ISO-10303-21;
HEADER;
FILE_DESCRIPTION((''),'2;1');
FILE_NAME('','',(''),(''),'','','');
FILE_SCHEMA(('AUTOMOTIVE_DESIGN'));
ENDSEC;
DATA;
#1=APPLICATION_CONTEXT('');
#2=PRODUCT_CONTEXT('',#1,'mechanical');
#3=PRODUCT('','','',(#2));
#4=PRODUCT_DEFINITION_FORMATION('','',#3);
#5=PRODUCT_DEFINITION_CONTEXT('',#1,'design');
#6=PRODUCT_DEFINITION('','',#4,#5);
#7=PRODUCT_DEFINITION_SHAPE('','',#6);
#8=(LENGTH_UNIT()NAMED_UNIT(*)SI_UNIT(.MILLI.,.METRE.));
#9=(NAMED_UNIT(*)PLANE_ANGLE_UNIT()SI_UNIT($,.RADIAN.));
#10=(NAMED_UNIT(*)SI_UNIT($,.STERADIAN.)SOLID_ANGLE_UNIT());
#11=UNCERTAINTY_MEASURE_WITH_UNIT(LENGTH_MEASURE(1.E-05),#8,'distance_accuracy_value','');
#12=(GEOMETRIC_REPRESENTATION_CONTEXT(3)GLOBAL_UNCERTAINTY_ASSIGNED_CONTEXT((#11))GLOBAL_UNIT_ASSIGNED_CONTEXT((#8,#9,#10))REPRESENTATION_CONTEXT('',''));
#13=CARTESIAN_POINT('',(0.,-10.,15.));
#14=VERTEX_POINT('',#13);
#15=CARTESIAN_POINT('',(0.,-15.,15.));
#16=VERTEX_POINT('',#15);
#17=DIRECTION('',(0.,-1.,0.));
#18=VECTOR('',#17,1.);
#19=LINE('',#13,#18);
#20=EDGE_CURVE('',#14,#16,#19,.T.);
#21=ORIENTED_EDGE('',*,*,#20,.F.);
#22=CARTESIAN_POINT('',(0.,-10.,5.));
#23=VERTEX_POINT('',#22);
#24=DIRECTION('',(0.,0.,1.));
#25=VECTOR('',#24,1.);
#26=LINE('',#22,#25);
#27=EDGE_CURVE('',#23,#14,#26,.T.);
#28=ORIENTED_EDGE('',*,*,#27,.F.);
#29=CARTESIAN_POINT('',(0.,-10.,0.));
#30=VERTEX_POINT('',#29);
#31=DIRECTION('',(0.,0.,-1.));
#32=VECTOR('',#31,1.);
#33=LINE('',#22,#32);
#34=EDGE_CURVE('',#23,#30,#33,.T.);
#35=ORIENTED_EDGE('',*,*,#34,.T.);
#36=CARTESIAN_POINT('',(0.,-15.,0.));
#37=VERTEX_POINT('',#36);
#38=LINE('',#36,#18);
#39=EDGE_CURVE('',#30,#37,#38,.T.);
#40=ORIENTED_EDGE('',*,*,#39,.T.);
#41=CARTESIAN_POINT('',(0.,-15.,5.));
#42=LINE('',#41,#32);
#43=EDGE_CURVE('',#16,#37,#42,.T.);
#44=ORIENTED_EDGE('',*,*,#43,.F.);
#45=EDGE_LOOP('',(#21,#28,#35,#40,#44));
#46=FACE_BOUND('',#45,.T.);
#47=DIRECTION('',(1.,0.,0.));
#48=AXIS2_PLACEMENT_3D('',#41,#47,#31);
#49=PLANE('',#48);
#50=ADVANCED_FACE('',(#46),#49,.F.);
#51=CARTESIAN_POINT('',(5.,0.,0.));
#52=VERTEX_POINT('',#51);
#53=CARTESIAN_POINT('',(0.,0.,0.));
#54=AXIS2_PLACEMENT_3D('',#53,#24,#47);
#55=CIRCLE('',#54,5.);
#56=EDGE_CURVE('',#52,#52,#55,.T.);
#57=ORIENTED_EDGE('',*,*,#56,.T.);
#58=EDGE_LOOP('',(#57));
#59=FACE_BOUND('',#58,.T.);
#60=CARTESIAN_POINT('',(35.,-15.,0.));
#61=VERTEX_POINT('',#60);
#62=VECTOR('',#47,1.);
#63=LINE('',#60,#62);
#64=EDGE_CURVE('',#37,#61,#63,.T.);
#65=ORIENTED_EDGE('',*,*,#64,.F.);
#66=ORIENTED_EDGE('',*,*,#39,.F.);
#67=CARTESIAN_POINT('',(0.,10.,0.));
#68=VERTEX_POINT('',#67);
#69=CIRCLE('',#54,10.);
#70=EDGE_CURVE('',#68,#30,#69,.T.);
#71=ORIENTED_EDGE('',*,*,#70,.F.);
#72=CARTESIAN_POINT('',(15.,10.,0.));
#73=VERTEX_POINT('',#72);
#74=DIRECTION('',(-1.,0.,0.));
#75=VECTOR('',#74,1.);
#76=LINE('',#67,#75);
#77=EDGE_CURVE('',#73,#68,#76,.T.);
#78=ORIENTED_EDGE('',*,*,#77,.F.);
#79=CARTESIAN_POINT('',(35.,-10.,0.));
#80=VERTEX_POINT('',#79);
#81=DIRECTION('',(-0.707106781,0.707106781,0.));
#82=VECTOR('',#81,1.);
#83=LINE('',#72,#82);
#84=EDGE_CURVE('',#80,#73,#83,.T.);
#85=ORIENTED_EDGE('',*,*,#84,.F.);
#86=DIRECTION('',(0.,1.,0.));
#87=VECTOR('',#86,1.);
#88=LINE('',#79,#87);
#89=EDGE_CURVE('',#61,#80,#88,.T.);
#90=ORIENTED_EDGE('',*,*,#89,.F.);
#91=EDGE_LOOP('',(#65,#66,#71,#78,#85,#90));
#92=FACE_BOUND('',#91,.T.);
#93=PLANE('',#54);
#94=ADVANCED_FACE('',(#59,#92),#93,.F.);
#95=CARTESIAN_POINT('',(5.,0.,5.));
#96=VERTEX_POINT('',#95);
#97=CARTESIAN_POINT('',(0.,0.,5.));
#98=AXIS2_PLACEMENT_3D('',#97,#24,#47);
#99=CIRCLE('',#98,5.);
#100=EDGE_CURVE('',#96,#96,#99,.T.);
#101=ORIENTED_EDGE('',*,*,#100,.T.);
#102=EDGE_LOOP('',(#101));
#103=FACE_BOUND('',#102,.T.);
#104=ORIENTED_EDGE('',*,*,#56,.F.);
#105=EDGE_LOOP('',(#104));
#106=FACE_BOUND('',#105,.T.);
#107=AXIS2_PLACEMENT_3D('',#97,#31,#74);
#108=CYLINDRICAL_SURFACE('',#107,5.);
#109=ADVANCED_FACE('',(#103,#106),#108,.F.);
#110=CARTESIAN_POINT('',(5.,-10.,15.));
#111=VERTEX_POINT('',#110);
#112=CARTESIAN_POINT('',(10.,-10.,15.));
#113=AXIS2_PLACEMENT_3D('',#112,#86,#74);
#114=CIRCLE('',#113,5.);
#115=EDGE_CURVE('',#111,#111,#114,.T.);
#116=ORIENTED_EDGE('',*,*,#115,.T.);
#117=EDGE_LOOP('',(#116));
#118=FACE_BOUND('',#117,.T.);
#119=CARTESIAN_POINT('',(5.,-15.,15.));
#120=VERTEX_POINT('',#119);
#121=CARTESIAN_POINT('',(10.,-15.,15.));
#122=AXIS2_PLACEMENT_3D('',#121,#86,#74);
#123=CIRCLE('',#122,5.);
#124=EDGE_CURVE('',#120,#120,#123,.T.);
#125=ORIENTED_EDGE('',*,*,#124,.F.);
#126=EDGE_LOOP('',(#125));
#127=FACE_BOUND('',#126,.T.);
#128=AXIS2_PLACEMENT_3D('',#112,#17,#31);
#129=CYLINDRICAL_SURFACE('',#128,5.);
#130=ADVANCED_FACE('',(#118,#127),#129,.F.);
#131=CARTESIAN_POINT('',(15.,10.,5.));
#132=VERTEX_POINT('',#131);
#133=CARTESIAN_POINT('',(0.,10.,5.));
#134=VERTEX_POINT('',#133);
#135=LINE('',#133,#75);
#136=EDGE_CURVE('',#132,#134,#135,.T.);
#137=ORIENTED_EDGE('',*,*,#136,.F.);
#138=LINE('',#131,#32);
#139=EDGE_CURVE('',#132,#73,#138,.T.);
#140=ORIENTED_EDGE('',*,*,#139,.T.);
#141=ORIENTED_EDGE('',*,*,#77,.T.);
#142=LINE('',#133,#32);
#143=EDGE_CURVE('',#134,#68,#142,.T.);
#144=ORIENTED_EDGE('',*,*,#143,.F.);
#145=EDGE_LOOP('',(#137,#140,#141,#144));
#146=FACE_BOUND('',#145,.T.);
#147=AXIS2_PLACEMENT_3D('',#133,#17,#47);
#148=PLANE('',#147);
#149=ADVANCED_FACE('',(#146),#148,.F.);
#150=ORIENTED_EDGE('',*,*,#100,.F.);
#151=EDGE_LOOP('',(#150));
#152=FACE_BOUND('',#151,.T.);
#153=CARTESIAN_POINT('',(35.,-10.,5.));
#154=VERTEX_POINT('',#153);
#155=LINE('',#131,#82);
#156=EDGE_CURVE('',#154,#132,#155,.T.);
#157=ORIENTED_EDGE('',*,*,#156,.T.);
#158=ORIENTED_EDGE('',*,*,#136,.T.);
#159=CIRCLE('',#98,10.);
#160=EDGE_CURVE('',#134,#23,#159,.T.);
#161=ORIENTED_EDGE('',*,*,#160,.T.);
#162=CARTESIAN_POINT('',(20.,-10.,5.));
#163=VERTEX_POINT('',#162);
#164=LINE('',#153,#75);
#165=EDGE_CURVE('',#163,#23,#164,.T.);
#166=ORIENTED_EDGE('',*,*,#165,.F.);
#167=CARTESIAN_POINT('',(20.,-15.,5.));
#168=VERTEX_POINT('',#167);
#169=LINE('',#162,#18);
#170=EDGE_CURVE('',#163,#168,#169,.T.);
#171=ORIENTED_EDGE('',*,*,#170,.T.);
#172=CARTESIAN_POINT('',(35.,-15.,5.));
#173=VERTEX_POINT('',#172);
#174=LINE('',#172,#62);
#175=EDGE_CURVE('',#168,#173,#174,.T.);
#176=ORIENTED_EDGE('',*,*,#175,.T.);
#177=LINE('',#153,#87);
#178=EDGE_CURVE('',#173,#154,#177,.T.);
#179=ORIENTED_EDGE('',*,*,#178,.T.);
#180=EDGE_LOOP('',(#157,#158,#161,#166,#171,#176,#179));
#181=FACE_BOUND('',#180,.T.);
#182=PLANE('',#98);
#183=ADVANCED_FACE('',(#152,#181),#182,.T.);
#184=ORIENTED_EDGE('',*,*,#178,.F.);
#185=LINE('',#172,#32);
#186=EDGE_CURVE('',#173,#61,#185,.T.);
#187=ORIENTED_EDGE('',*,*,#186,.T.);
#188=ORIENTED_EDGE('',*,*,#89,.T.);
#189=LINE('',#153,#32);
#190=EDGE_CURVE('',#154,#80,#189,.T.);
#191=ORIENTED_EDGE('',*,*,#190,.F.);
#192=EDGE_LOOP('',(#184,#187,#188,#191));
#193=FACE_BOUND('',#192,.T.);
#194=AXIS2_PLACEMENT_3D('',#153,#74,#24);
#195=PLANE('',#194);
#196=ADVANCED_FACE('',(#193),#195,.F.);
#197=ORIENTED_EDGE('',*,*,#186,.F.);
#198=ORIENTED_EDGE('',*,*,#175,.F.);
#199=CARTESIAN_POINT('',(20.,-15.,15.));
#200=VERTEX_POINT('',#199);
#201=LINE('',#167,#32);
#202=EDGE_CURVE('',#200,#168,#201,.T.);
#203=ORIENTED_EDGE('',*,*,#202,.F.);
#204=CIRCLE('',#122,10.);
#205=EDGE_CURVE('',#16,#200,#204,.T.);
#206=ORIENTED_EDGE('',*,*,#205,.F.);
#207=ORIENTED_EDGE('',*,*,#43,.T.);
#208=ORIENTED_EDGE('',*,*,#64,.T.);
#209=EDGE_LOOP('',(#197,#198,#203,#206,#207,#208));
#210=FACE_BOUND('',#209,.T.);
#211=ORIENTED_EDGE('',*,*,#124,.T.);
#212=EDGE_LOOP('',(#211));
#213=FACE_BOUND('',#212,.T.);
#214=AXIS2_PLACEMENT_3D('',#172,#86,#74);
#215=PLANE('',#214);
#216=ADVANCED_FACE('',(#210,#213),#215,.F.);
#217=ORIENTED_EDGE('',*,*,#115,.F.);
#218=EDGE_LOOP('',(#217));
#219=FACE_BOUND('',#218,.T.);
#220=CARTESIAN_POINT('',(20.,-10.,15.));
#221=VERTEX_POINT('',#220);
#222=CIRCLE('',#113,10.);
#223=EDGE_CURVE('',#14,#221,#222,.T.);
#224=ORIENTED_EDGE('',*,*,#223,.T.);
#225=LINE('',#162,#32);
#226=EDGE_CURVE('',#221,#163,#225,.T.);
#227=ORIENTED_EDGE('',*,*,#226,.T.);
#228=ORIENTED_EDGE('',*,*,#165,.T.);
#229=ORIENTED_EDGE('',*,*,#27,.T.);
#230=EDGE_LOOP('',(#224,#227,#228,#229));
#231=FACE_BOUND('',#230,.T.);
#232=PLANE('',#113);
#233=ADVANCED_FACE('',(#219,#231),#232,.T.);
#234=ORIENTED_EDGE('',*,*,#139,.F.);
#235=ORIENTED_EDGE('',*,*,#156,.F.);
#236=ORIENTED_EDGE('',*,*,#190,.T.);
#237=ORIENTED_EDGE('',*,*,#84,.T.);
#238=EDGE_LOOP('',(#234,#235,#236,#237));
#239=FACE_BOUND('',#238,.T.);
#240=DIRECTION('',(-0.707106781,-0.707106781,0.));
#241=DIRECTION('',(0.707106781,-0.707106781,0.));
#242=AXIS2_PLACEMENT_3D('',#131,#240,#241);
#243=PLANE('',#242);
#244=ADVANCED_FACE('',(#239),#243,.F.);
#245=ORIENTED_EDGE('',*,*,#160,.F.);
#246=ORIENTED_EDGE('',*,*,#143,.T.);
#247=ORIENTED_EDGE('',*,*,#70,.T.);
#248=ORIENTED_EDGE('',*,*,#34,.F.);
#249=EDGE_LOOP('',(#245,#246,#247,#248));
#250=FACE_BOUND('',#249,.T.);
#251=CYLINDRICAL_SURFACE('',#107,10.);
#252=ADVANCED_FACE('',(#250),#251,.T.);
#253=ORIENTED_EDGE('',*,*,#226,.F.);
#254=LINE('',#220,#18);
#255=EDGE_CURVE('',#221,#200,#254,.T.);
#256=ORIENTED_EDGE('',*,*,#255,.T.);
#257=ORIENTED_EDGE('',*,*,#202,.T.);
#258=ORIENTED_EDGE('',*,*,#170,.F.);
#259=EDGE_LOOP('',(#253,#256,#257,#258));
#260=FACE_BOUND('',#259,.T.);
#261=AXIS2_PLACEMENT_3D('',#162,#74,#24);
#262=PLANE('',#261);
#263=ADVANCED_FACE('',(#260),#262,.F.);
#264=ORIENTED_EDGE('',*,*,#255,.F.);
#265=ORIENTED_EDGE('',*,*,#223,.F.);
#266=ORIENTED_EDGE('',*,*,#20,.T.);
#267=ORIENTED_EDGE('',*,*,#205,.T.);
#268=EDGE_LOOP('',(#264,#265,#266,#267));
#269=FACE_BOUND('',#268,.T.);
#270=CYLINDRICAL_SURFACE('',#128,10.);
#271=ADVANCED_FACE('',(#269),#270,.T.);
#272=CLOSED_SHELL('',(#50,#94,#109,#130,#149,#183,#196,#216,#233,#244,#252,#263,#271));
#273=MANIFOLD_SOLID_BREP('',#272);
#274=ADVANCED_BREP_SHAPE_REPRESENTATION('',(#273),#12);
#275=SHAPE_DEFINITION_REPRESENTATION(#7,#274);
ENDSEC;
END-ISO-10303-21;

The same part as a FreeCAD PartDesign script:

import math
import FreeCAD as App
import Part
import Sketcher
Q = App.Units.Quantity

doc = App.newDocument("Part")
params = doc.addObject("Spreadsheet::Sheet", "Params")
for row, (alias, value) in enumerate([
    ("sketch1_diameter", "10 mm"),
    ("sketch1_radius", "10 mm"),
    ("sketch1_width", "15 mm"),
    ("sketch1_width2", "35 mm"),
    ("sketch1_height", "5 mm"),
    ("pad1_length", "5 mm"),
    ("sketch2_diameter", "10 mm"),
    ("sketch2_radius", "10 mm"),
    ("sketch2_height", "10 mm"),
    ("pad2_length", "5 mm"),
], start=1):
    params.set(f"A{row}", alias)
    params.set(f"B{row}", "=" + value)
    params.setAlias(f"B{row}", alias)

body = doc.addObject("PartDesign::Body", "Body")

# Sketch on XY plane
sketch1 = body.newObject("Sketcher::SketchObject", "Sketch")
sketch1.AttachmentSupport = (doc.getObject("XY_Plane"), [""])
sketch1.MapMode = "FlatFace"
sketch1.addGeometry([
    Part.LineSegment(App.Vector(15, 10, 0), App.Vector(0, 10, 0)),  # 0
    Part.ArcOfCircle(Part.Circle(App.Vector(0, 0, 0), App.Vector(0, 0, 1), 10), math.radians(90), math.radians(270)),  # 1
    Part.LineSegment(App.Vector(0, -10, 0), App.Vector(0, -15, 0)),  # 2
    Part.LineSegment(App.Vector(0, -15, 0), App.Vector(35, -15, 0)),  # 3
    Part.LineSegment(App.Vector(35, -15, 0), App.Vector(35, -10, 0)),  # 4
    Part.LineSegment(App.Vector(35, -10, 0), App.Vector(15, 10, 0)),  # 5
    Part.Circle(App.Vector(0, 0, 0), App.Vector(0, 0, 1), 5),  # 6
], False)
sketch1.addConstraint([
    Sketcher.Constraint("Tangent", 0, 2, 1, 1),
    Sketcher.Constraint("Coincident", 1, 2, 2, 1),
    Sketcher.Constraint("Coincident", 2, 2, 3, 1),
    Sketcher.Constraint("Coincident", 3, 2, 4, 1),
    Sketcher.Constraint("Coincident", 4, 2, 5, 1),
    Sketcher.Constraint("Coincident", 5, 2, 0, 1),
    Sketcher.Constraint("Horizontal", 0),
    Sketcher.Constraint("Vertical", 2),
    Sketcher.Constraint("Horizontal", 3),
    Sketcher.Constraint("Vertical", 4),
    Sketcher.Constraint("Coincident", 1, 3, -1, 1),
    Sketcher.Constraint("Coincident", 6, 3, -1, 1),
    Sketcher.Constraint("PointOnObject", 1, 2, -2),
    Sketcher.Constraint("Horizontal", 1, 2, 4, 2),
    Sketcher.Constraint("Diameter", 6, Q("10 mm")),
    Sketcher.Constraint("Radius", 1, Q("10 mm")),
    Sketcher.Constraint("DistanceX", 0, 2, 0, 1, Q("15 mm")),
    Sketcher.Constraint("DistanceX", 3, 1, 3, 2, Q("35 mm")),
    Sketcher.Constraint("DistanceY", 2, 2, 2, 1, Q("5 mm")),
])
sketch1.setExpression("Constraints[14]", "Params.sketch1_diameter")
sketch1.setExpression("Constraints[15]", "Params.sketch1_radius")
sketch1.setExpression("Constraints[16]", "Params.sketch1_width")
sketch1.setExpression("Constraints[17]", "Params.sketch1_width2")
sketch1.setExpression("Constraints[18]", "Params.sketch1_height")
pad1 = body.newObject("PartDesign::Pad", "Pad")
pad1.Profile = sketch1
pad1.setExpression("Length", "Params.pad1_length")

# Sketch on XZ plane
sketch2 = body.newObject("Sketcher::SketchObject", "Sketch001")
sketch2.AttachmentSupport = (doc.getObject("XZ_Plane"), [""])
sketch2.MapMode = "FlatFace"
sketch2.AttachmentOffset = App.Placement(App.Vector(0, 0, 15), App.Rotation())
sketch2.addGeometry([
    Part.LineSegment(App.Vector(0, 5, 0), App.Vector(0, 15, 0)),  # 0
    Part.ArcOfCircle(Part.Circle(App.Vector(10, 15, 0), App.Vector(0, 0, 1), 10), math.radians(0), math.radians(180)),  # 1
    Part.LineSegment(App.Vector(20, 15, 0), App.Vector(20, 5, 0)),  # 2
    Part.LineSegment(App.Vector(20, 5, 0), App.Vector(0, 5, 0)),  # 3
    Part.Circle(App.Vector(10, 15, 0), App.Vector(0, 0, 1), 5),  # 4
], False)
sketch2.addConstraint([
    Sketcher.Constraint("Tangent", 0, 2, 1, 2),
    Sketcher.Constraint("Tangent", 1, 1, 2, 1),
    Sketcher.Constraint("Coincident", 2, 2, 3, 1),
    Sketcher.Constraint("Coincident", 3, 2, 0, 1),
    Sketcher.Constraint("Vertical", 0),
    Sketcher.Constraint("Vertical", 2),
    Sketcher.Constraint("Horizontal", 3),
    Sketcher.Constraint("Coincident", 4, 3, 1, 3),
    Sketcher.Constraint("PointOnObject", 0, 2, -2),
    Sketcher.Constraint("Diameter", 4, Q("10 mm")),
    Sketcher.Constraint("Radius", 1, Q("10 mm")),
    Sketcher.Constraint("DistanceY", 0, 1, 0, 2, Q("10 mm")),
    Sketcher.Constraint("DistanceY", -1, 1, 1, 3, Q("15 mm")),
])
sketch2.setExpression("Constraints[9]", "Params.sketch2_diameter")
sketch2.setExpression("Constraints[10]", "Params.sketch2_radius")
sketch2.setExpression("Constraints[11]", "Params.sketch2_height")
pad2 = body.newObject("PartDesign::Pad", "Pad001")
pad2.Profile = sketch2
pad2.setExpression("Length", "Params.pad2_length")
pad2.Reversed = True

doc.recompute()
